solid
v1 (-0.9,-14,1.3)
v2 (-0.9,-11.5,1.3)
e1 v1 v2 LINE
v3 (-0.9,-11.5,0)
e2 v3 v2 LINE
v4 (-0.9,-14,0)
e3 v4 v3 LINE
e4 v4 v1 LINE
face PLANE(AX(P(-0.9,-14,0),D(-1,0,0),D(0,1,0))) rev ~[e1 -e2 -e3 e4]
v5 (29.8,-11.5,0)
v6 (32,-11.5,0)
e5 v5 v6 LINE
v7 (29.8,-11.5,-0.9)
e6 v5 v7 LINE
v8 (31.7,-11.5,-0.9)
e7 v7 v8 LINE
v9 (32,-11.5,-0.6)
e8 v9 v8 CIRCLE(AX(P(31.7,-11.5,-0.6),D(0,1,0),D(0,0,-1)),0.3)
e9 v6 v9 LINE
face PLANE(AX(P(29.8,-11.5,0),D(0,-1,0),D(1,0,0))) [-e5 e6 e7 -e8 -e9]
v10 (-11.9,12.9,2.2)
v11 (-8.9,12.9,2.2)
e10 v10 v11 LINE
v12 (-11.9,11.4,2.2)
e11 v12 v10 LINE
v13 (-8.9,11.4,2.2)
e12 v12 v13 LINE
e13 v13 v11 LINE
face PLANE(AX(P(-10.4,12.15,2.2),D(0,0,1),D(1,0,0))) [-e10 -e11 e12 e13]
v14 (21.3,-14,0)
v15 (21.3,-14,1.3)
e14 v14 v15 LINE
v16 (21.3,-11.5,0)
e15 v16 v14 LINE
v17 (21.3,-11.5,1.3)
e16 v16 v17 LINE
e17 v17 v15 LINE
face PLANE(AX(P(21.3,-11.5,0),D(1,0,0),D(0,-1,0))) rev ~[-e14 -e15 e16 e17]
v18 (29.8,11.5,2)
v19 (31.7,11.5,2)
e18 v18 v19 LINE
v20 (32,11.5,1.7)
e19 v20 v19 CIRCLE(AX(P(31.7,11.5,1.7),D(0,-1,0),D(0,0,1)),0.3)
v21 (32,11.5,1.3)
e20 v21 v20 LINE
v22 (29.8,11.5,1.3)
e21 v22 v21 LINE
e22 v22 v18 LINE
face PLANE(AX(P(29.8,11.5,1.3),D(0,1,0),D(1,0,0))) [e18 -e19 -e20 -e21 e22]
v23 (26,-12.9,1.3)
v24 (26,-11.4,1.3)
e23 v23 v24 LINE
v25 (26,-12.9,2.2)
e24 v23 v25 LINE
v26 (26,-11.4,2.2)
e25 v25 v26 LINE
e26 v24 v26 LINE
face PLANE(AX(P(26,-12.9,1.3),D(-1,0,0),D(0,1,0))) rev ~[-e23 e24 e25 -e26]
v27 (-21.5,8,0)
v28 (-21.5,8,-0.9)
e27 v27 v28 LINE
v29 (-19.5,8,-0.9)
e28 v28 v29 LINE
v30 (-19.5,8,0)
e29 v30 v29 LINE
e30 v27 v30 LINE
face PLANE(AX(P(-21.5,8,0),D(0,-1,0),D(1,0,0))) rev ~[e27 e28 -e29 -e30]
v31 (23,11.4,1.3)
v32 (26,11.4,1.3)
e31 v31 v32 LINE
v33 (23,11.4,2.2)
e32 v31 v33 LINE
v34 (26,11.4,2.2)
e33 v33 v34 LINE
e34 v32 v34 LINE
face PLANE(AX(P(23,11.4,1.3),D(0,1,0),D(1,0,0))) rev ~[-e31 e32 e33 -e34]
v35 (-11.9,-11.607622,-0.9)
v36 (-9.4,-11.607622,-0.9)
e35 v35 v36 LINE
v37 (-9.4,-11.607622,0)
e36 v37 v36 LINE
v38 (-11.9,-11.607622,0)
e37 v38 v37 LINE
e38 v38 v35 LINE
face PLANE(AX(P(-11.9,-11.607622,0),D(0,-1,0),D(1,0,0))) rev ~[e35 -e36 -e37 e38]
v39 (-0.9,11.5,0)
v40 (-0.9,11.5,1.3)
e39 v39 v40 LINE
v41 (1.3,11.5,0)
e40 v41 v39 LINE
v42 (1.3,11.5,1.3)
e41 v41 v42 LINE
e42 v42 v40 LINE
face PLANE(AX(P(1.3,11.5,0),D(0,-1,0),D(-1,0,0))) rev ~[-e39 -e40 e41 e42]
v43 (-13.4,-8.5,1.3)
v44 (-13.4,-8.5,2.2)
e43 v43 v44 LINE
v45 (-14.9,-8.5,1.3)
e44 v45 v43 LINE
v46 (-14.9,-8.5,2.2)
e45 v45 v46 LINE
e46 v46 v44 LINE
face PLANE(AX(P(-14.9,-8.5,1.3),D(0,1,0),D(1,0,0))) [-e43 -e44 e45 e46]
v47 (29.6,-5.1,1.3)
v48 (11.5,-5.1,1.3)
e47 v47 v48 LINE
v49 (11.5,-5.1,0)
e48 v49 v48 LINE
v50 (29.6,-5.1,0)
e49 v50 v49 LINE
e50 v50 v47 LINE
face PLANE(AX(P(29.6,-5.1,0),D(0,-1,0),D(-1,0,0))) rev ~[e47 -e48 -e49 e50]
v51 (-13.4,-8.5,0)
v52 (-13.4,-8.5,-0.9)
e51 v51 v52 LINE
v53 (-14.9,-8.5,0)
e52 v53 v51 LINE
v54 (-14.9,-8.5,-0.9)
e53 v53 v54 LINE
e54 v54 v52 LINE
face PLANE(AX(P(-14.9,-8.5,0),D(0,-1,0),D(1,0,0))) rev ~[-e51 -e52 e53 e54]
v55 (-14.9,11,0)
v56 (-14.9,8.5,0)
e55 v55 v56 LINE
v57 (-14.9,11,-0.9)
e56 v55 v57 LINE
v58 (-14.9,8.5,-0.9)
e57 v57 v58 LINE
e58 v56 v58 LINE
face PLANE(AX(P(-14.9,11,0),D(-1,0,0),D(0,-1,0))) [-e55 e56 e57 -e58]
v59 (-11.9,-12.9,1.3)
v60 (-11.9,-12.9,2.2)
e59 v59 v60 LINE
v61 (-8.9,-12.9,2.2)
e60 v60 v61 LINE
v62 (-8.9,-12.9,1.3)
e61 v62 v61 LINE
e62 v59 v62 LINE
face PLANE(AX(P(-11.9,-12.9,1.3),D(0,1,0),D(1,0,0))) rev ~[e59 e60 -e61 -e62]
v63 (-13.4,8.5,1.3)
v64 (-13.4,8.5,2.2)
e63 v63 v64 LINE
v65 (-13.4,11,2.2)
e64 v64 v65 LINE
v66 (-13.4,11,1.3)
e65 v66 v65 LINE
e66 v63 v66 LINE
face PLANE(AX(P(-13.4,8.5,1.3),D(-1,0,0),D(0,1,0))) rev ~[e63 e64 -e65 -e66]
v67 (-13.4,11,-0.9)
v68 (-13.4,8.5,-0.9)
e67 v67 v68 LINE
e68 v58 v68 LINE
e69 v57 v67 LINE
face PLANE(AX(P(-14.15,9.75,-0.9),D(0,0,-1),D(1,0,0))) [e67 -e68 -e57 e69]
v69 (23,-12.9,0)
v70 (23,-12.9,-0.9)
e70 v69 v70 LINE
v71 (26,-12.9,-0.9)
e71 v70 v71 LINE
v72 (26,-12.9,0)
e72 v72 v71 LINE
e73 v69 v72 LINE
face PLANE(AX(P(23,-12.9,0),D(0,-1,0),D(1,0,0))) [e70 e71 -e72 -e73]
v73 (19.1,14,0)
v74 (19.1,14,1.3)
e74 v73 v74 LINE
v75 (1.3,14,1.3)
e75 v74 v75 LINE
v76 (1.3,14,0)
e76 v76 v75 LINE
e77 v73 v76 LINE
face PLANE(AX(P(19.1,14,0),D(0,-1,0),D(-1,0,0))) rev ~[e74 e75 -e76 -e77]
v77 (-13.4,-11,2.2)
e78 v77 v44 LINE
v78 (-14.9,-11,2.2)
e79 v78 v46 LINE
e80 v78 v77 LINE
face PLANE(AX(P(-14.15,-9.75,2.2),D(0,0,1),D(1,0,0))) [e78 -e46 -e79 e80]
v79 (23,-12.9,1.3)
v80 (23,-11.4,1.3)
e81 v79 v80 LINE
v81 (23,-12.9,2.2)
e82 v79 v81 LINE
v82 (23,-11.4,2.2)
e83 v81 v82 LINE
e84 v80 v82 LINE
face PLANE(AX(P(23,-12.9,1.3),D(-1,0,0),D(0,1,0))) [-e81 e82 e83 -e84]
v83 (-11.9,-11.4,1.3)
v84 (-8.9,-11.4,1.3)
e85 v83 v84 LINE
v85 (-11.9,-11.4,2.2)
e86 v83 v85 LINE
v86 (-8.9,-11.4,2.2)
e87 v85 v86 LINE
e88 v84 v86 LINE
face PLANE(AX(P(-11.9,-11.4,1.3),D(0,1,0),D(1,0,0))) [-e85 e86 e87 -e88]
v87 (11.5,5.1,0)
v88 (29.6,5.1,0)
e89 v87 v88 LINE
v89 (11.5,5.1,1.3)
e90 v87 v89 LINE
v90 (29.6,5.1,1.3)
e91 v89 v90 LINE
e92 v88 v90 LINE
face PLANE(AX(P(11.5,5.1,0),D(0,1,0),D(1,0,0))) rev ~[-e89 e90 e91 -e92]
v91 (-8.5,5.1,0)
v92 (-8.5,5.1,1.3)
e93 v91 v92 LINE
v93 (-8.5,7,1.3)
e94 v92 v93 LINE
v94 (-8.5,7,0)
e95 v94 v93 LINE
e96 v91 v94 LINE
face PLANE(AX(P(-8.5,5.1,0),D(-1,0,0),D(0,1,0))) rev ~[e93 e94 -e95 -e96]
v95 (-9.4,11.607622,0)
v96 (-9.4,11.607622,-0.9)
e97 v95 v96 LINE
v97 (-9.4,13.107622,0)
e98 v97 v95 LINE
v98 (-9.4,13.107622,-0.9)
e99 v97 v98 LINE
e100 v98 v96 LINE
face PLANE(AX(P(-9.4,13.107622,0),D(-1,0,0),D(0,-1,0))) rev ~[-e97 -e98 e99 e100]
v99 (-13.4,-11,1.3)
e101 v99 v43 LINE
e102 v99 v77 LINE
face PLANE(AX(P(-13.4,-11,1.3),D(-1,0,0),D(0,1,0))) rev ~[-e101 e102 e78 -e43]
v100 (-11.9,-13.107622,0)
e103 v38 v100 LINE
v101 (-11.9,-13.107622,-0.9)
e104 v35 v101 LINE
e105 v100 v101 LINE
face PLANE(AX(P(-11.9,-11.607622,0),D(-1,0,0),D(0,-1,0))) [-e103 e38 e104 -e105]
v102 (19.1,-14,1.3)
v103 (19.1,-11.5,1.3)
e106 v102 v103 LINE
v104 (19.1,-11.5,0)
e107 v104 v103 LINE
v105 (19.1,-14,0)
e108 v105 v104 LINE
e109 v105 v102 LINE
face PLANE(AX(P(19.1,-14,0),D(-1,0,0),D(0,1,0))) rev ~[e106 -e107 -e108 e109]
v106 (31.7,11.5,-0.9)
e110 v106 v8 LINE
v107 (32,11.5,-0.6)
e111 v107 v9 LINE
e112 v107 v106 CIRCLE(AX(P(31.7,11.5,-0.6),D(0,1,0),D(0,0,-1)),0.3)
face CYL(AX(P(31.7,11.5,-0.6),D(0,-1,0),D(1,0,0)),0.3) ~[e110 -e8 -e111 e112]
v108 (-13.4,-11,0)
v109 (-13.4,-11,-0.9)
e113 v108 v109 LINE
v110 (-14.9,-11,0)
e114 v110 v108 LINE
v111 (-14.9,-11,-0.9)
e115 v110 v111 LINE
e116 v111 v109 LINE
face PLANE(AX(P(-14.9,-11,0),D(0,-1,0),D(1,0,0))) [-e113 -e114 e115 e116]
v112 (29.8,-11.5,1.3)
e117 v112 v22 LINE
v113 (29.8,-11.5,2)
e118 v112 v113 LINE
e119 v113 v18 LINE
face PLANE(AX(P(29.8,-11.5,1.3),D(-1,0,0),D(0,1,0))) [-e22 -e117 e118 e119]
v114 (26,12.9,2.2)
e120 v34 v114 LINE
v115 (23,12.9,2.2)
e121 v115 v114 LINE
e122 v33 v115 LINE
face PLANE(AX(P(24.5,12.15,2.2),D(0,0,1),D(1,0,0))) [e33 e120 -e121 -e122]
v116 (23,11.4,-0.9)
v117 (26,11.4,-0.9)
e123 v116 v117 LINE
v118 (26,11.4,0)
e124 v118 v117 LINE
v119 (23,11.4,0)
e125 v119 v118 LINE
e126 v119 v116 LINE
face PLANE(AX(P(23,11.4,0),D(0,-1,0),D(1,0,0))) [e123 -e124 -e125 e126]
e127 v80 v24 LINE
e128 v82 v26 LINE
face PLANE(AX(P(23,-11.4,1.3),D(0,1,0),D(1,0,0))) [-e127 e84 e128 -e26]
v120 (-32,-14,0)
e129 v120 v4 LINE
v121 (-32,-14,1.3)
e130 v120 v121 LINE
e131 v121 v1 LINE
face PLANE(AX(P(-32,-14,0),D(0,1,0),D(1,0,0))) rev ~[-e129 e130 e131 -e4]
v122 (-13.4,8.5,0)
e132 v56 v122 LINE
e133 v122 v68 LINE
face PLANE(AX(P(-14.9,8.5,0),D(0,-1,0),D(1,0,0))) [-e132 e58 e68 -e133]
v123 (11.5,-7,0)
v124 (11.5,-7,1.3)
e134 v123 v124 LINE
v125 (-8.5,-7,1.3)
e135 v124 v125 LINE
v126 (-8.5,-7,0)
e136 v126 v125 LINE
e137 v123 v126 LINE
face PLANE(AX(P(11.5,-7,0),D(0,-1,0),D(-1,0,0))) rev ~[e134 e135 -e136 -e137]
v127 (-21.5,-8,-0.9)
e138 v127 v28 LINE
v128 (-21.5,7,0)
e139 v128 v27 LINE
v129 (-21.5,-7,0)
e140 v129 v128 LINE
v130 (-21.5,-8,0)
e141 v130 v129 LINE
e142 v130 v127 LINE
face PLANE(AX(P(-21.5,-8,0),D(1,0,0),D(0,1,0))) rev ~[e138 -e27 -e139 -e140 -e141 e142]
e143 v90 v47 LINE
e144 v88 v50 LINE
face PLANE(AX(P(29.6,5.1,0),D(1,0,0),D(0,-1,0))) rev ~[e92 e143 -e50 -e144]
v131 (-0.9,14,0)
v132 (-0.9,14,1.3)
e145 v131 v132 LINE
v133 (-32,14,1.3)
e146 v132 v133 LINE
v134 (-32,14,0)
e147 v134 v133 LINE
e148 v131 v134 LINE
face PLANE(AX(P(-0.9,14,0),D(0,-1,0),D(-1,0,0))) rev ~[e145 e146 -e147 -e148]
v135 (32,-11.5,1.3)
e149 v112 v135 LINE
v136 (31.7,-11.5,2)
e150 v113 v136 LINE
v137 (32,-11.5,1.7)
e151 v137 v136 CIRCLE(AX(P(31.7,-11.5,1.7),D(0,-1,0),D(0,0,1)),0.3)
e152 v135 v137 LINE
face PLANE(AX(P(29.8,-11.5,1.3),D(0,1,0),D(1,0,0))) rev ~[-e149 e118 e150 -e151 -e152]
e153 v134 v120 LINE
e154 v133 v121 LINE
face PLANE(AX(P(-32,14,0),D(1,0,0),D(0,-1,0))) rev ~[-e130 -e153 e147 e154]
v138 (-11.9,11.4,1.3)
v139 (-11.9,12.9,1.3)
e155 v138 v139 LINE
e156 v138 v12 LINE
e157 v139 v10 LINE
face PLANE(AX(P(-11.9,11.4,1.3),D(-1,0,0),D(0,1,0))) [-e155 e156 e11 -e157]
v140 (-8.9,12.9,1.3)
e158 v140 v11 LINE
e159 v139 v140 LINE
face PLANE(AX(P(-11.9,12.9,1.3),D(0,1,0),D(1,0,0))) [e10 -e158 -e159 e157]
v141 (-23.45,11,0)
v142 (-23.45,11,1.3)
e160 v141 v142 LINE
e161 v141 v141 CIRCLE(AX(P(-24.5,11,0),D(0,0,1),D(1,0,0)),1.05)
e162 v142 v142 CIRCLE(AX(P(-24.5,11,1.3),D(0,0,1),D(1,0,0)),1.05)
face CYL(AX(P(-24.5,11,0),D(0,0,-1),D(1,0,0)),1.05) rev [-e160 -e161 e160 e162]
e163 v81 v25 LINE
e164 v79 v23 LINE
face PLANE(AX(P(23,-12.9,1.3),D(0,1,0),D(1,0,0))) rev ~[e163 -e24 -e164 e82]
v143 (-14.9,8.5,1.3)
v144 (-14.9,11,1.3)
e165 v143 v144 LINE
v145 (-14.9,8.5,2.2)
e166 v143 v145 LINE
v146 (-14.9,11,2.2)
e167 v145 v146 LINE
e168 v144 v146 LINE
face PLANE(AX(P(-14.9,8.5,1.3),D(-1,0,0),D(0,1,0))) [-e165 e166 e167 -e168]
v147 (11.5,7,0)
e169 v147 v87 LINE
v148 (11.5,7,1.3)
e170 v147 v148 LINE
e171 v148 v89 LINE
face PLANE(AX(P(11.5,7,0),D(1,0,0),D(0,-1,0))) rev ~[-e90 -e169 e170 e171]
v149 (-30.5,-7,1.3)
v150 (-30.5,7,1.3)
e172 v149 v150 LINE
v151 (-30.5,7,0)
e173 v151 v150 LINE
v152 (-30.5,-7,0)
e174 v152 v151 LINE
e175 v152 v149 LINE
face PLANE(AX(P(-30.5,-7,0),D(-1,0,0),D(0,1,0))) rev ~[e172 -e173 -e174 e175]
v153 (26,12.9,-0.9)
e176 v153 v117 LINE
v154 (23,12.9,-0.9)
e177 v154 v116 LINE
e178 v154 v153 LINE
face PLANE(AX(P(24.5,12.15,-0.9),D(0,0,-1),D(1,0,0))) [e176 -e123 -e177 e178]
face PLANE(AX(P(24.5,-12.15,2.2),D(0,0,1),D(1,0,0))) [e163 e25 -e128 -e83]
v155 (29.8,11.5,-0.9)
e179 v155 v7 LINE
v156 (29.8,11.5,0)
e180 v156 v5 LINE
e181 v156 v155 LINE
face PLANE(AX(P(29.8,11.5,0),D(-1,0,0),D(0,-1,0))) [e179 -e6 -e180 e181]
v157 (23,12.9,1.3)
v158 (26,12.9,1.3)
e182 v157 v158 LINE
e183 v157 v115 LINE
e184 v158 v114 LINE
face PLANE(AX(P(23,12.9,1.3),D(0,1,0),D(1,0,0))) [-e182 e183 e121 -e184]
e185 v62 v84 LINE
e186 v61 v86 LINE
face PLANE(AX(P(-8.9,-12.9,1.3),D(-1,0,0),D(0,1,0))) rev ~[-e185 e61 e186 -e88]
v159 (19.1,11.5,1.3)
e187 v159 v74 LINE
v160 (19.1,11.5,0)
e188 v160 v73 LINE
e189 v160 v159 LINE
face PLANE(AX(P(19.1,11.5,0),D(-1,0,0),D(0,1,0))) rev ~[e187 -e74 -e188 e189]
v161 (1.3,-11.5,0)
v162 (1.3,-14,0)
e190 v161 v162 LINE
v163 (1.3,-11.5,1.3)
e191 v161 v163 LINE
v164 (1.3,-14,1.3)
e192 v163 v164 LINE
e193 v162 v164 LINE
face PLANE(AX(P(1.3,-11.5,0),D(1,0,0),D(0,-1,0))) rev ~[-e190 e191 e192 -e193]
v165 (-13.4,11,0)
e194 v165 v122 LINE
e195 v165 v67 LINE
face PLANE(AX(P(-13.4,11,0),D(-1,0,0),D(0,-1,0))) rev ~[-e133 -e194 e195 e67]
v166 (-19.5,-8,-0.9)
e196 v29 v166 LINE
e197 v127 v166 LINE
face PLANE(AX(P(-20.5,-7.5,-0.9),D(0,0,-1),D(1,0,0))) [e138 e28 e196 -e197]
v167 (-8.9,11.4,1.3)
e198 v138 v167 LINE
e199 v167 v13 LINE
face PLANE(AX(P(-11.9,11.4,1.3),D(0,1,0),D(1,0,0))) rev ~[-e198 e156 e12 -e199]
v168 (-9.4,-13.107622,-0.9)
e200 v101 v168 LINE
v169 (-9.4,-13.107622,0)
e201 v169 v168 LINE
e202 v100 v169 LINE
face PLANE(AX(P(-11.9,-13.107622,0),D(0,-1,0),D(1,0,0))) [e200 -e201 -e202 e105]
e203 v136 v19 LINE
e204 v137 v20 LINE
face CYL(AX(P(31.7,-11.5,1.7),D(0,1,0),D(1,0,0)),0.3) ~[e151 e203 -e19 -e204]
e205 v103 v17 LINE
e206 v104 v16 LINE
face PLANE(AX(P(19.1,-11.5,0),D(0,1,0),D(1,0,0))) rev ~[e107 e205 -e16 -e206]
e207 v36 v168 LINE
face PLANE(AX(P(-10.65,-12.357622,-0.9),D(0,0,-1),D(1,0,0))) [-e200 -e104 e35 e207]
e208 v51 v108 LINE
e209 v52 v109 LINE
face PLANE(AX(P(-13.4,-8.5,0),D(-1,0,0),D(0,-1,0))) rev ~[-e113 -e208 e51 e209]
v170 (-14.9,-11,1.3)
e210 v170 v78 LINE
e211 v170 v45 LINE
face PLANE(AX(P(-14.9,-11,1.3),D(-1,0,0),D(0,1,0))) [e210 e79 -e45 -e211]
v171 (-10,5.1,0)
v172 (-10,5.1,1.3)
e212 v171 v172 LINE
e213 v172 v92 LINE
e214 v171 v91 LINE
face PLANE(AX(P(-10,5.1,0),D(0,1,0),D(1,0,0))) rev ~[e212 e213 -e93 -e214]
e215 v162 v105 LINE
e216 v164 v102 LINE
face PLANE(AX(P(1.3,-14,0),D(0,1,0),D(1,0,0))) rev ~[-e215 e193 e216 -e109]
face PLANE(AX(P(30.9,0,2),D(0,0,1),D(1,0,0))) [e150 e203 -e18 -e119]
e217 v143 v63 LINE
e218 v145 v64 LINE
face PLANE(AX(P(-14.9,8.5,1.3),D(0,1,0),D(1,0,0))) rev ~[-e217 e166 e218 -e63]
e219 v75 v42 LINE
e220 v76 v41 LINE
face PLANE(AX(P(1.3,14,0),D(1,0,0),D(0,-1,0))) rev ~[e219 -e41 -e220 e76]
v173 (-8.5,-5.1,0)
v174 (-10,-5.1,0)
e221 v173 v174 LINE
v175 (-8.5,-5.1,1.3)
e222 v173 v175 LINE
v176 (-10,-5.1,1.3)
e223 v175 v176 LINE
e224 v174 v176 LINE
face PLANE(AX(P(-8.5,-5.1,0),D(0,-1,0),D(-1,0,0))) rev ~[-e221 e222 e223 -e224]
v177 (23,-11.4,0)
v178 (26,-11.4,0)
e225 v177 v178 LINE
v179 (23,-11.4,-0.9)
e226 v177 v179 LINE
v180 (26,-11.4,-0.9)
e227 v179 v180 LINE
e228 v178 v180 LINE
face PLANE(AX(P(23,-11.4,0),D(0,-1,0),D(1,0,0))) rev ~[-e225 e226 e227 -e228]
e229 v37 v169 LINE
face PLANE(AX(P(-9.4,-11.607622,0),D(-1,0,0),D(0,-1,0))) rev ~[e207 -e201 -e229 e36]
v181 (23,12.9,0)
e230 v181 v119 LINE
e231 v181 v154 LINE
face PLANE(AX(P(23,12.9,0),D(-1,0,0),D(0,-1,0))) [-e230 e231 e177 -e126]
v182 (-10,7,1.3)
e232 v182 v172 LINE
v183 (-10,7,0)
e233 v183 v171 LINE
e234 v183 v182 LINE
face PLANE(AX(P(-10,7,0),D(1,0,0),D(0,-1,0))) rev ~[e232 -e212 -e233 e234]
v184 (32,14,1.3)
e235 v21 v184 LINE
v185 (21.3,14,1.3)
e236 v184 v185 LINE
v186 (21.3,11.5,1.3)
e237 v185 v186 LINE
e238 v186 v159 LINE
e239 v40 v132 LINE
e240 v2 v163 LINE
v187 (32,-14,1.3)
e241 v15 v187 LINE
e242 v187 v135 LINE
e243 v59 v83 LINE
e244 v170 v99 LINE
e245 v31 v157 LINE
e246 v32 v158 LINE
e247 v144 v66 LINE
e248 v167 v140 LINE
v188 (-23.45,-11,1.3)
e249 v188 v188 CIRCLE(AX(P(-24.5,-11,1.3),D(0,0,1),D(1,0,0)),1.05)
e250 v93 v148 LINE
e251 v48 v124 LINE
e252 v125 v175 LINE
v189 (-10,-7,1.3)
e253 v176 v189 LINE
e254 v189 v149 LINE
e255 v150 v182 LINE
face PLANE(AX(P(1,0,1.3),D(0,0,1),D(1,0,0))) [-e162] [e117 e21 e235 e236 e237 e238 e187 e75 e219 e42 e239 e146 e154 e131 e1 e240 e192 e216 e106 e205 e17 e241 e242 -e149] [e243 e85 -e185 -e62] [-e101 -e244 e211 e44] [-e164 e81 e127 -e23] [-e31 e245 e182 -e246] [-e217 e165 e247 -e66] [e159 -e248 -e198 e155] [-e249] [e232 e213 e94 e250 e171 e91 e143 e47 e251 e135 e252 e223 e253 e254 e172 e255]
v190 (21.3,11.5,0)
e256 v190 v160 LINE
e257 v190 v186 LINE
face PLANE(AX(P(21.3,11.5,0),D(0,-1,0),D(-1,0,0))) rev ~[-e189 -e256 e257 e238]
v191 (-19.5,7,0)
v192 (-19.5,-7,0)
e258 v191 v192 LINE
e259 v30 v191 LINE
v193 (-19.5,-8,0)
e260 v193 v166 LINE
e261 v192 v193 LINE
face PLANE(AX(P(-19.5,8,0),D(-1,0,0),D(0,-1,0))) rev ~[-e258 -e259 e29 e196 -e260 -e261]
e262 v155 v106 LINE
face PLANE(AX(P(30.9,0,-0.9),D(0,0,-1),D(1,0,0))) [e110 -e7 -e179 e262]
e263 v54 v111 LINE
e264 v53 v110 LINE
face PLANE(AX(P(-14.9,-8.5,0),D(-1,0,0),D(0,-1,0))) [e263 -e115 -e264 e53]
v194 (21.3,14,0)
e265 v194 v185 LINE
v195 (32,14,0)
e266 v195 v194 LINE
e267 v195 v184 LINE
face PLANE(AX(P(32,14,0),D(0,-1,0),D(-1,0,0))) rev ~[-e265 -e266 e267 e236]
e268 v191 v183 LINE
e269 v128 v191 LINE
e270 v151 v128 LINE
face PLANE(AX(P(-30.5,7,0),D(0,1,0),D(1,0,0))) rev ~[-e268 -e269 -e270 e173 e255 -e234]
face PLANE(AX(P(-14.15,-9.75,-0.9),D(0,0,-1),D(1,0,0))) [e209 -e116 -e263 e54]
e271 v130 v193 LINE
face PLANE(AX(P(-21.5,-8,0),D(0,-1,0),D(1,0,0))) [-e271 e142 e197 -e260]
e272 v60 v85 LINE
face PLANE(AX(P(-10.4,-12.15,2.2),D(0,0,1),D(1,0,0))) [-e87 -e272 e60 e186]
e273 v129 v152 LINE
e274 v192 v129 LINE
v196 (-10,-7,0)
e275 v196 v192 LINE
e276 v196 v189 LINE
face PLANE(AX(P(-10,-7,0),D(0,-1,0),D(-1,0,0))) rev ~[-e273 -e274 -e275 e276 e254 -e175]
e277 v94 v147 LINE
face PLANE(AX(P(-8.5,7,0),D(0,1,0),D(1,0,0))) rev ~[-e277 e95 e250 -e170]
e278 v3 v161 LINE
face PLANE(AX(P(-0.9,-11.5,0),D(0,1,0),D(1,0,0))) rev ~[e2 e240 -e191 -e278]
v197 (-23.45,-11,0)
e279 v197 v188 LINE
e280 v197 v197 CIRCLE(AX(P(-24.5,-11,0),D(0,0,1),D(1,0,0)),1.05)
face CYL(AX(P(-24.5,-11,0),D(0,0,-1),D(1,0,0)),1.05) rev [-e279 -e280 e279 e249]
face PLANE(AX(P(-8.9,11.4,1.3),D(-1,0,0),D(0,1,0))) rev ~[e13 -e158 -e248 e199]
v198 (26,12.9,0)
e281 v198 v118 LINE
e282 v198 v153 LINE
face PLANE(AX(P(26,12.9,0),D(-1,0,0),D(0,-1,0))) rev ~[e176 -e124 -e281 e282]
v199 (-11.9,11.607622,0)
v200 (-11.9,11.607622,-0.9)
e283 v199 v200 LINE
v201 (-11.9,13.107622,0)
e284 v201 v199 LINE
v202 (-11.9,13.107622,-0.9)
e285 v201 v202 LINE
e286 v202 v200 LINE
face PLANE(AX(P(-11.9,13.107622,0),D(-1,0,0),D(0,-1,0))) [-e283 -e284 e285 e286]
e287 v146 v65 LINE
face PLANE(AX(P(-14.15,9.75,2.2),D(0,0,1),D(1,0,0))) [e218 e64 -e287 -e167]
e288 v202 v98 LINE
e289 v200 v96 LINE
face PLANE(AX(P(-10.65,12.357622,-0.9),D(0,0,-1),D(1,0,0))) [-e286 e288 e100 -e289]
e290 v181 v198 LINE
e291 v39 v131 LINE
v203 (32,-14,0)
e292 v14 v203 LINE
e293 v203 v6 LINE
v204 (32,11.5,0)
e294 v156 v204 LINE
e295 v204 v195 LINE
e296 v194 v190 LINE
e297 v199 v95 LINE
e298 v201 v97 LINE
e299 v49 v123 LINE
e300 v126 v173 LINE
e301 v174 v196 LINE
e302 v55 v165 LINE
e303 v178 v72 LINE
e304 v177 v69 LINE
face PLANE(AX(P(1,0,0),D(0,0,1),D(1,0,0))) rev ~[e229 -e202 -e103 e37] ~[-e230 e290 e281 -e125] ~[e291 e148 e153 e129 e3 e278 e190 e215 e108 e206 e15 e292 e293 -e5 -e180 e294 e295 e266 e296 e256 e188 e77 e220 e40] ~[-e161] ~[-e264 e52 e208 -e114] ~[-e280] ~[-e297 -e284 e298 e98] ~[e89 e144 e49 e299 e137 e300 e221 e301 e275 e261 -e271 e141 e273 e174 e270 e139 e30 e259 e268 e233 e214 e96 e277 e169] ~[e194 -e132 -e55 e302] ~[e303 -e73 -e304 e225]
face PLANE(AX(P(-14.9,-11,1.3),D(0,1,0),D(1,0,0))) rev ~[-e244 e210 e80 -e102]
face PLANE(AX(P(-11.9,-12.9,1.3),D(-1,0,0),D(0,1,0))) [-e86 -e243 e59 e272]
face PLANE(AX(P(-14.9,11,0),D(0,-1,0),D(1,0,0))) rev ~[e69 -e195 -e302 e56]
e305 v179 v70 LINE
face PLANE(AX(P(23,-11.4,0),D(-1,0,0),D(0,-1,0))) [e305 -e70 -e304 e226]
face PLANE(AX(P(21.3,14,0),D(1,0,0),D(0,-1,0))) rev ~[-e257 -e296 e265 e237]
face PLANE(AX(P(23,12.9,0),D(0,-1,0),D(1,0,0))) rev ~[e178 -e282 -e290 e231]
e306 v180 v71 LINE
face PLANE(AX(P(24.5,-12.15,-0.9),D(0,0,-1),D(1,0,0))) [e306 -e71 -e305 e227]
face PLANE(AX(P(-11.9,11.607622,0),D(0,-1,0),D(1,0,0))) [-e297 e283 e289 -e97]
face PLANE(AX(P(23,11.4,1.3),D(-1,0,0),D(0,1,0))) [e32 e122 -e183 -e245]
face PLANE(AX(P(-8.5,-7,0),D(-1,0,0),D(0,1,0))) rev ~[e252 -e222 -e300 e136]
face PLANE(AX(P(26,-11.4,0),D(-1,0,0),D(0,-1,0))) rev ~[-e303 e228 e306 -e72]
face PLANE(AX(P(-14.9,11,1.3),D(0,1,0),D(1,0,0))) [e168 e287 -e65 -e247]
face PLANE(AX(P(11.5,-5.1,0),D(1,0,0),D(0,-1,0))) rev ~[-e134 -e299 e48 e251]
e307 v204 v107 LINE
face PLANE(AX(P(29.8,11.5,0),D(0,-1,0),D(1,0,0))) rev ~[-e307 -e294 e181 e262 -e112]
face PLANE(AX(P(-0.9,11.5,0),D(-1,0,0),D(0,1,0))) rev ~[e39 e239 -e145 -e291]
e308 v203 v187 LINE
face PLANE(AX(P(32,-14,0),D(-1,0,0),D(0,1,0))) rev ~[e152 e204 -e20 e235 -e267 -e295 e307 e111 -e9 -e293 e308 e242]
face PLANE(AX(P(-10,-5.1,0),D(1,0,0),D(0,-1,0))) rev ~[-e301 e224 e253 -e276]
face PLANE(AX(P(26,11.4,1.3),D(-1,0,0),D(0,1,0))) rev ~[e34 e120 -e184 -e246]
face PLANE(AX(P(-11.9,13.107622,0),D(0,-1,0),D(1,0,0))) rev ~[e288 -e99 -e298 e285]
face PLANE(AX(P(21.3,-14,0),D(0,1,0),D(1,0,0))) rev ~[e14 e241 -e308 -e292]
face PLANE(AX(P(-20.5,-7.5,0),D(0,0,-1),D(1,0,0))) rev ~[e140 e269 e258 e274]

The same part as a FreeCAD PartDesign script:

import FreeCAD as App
import Part
import Sketcher
Q = App.Units.Quantity


def edges_at(feature, points):
    """Names of the edges that pass closest to the given points."""
    edges = feature.Shape.Edges
    near = lambda p: min(range(len(edges)), key=lambda i: edges[i].distToShape(Part.Vertex(*p))[0])
    return sorted({f"Edge{near(p) + 1}" for p in points})

doc = App.newDocument("Part")
body = doc.addObject("PartDesign::Body", "Body")

# Sketch on XY plane
sketch1 = body.newObject("Sketcher::SketchObject", "Sketch")
sketch1.AttachmentSupport = (doc.getObject("XY_Plane"), [""])
sketch1.MapMode = "FlatFace"
sketch1.addGeometry([
    Part.LineSegment(App.Vector(21.3, -14, 0), App.Vector(32, -14, 0)),  # 0
    Part.LineSegment(App.Vector(32, -14, 0), App.Vector(32, 14, 0)),  # 1
    Part.LineSegment(App.Vector(32, 14, 0), App.Vector(21.3, 14, 0)),  # 2
    Part.LineSegment(App.Vector(21.3, 14, 0), App.Vector(21.3, 11.5, 0)),  # 3
    Part.LineSegment(App.Vector(21.3, 11.5, 0), App.Vector(19.1, 11.5, 0)),  # 4
    Part.LineSegment(App.Vector(19.1, 11.5, 0), App.Vector(19.1, 14, 0)),  # 5
    Part.LineSegment(App.Vector(19.1, 14, 0), App.Vector(1.3, 14, 0)),  # 6
    Part.LineSegment(App.Vector(1.3, 14, 0), App.Vector(1.3, 11.5, 0)),  # 7
    Part.LineSegment(App.Vector(1.3, 11.5, 0), App.Vector(-0.9, 11.5, 0)),  # 8
    Part.LineSegment(App.Vector(-0.9, 11.5, 0), App.Vector(-0.9, 14, 0)),  # 9
    Part.LineSegment(App.Vector(-0.9, 14, 0), App.Vector(-32, 14, 0)),  # 10
    Part.LineSegment(App.Vector(-32, 14, 0), App.Vector(-32, -14, 0)),  # 11
    Part.LineSegment(App.Vector(-32, -14, 0), App.Vector(-0.9, -14, 0)),  # 12
    Part.LineSegment(App.Vector(-0.9, -14, 0), App.Vector(-0.9, -11.5, 0)),  # 13
    Part.LineSegment(App.Vector(-0.9, -11.5, 0), App.Vector(1.3, -11.5, 0)),  # 14
    Part.LineSegment(App.Vector(1.3, -11.5, 0), App.Vector(1.3, -14, 0)),  # 15
    Part.LineSegment(App.Vector(1.3, -14, 0), App.Vector(19.1, -14, 0)),  # 16
    Part.LineSegment(App.Vector(19.1, -14, 0), App.Vector(19.1, -11.5, 0)),  # 17
    Part.LineSegment(App.Vector(19.1, -11.5, 0), App.Vector(21.3, -11.5, 0)),  # 18
    Part.LineSegment(App.Vector(21.3, -11.5, 0), App.Vector(21.3, -14, 0)),  # 19
    Part.Circle(App.Vector(-24.5, -11, 0), App.Vector(0, 0, 1), 1.1),  # 20
    Part.Circle(App.Vector(-24.5, 11, 0), App.Vector(0, 0, 1), 1.1),  # 21
    Part.LineSegment(App.Vector(-30.5, 7, 0), App.Vector(-10, 7, 0)),  # 22
    Part.LineSegment(App.Vector(-10, 7, 0), App.Vector(-10, 5.1, 0)),  # 23
    Part.LineSegment(App.Vector(-10, 5.1, 0), App.Vector(-8.5, 5.1, 0)),  # 24
    Part.LineSegment(App.Vector(-8.5, 5.1, 0), App.Vector(-8.5, 7, 0)),  # 25
    Part.LineSegment(App.Vector(-8.5, 7, 0), App.Vector(11.5, 7, 0)),  # 26
    Part.LineSegment(App.Vector(11.5, 7, 0), App.Vector(11.5, 5.1, 0)),  # 27
    Part.LineSegment(App.Vector(11.5, 5.1, 0), App.Vector(29.6, 5.1, 0)),  # 28
    Part.LineSegment(App.Vector(29.6, 5.1, 0), App.Vector(29.6, -5.1, 0)),  # 29
    Part.LineSegment(App.Vector(29.6, -5.1, 0), App.Vector(11.5, -5.1, 0)),  # 30
    Part.LineSegment(App.Vector(11.5, -5.1, 0), App.Vector(11.5, -7, 0)),  # 31
    Part.LineSegment(App.Vector(11.5, -7, 0), App.Vector(-8.5, -7, 0)),  # 32
    Part.LineSegment(App.Vector(-8.5, -7, 0), App.Vector(-8.5, -5.1, 0)),  # 33
    Part.LineSegment(App.Vector(-8.5, -5.1, 0), App.Vector(-10, -5.1, 0)),  # 34
    Part.LineSegment(App.Vector(-10, -5.1, 0), App.Vector(-10, -7, 0)),  # 35
    Part.LineSegment(App.Vector(-10, -7, 0), App.Vector(-30.5, -7, 0)),  # 36
    Part.LineSegment(App.Vector(-30.5, -7, 0), App.Vector(-30.5, 7, 0)),  # 37
], False)
sketch1.addConstraint([
    Sketcher.Constraint("Coincident", 0, 2, 1, 1),
    Sketcher.Constraint("Coincident", 1, 2, 2, 1),
    Sketcher.Constraint("Coincident", 2, 2, 3, 1),
    Sketcher.Constraint("Coincident", 3, 2, 4, 1),
    Sketcher.Constraint("Coincident", 4, 2, 5, 1),
    Sketcher.Constraint("Coincident", 5, 2, 6, 1),
    Sketcher.Constraint("Coincident", 6, 2, 7, 1),
    Sketcher.Constraint("Coincident", 7, 2, 8, 1),
    Sketcher.Constraint("Coincident", 8, 2, 9, 1),
    Sketcher.Constraint("Coincident", 9, 2, 10, 1),
    Sketcher.Constraint("Coincident", 10, 2, 11, 1),
    Sketcher.Constraint("Coincident", 11, 2, 12, 1),
    Sketcher.Constraint("Coincident", 12, 2, 13, 1),
    Sketcher.Constraint("Coincident", 13, 2, 14, 1),
    Sketcher.Constraint("Coincident", 14, 2, 15, 1),
    Sketcher.Constraint("Coincident", 15, 2, 16, 1),
    Sketcher.Constraint("Coincident", 16, 2, 17, 1),
    Sketcher.Constraint("Coincident", 17, 2, 18, 1),
    Sketcher.Constraint("Coincident", 18, 2, 19, 1),
    Sketcher.Constraint("Coincident", 19, 2, 0, 1),
    Sketcher.Constraint("Coincident", 22, 2, 23, 1),
    Sketcher.Constraint("Coincident", 23, 2, 24, 1),
    Sketcher.Constraint("Coincident", 24, 2, 25, 1),
    Sketcher.Constraint("Coincident", 25, 2, 26, 1),
    Sketcher.Constraint("Coincident", 26, 2, 27, 1),
    Sketcher.Constraint("Coincident", 27, 2, 28, 1),
    Sketcher.Constraint("Coincident", 28, 2, 29, 1),
    Sketcher.Constraint("Coincident", 29, 2, 30, 1),
    Sketcher.Constraint("Coincident", 30, 2, 31, 1),
    Sketcher.Constraint("Coincident", 31, 2, 32, 1),
    Sketcher.Constraint("Coincident", 32, 2, 33, 1),
    Sketcher.Constraint("Coincident", 33, 2, 34, 1),
    Sketcher.Constraint("Coincident", 34, 2, 35, 1),
    Sketcher.Constraint("Coincident", 35, 2, 36, 1),
    Sketcher.Constraint("Coincident", 36, 2, 37, 1),
    Sketcher.Constraint("Coincident", 37, 2, 22, 1),
    Sketcher.Constraint("Horizontal", 0),
    Sketcher.Constraint("Vertical", 1),
    Sketcher.Constraint("Horizontal", 2),
    Sketcher.Constraint("Vertical", 3),
    Sketcher.Constraint("Horizontal", 4),
    Sketcher.Constraint("Vertical", 5),
    Sketcher.Constraint("Horizontal", 6),
    Sketcher.Constraint("Vertical", 7),
    Sketcher.Constraint("Horizontal", 8),
    Sketcher.Constraint("Vertical", 9),
    Sketcher.Constraint("Horizontal", 10),
    Sketcher.Constraint("Vertical", 11),
    Sketcher.Constraint("Horizontal", 12),
    Sketcher.Constraint("Vertical", 13),
    Sketcher.Constraint("Horizontal", 14),
    Sketcher.Constraint("Vertical", 15),
    Sketcher.Constraint("Horizontal", 16),
    Sketcher.Constraint("Vertical", 17),
    Sketcher.Constraint("Horizontal", 18),
    Sketcher.Constraint("Vertical", 19),
    Sketcher.Constraint("Horizontal", 22),
    Sketcher.Constraint("Vertical", 23),
    Sketcher.Constraint("Horizontal", 24),
    Sketcher.Constraint("Vertical", 25),
    Sketcher.Constraint("Horizontal", 26),
    Sketcher.Constraint("Vertical", 27),
    Sketcher.Constraint("Horizontal", 28),
    Sketcher.Constraint("Vertical", 29),
    Sketcher.Constraint("Horizontal", 30),
    Sketcher.Constraint("Vertical", 31),
    Sketcher.Constraint("Horizontal", 32),
    Sketcher.Constraint("Vertical", 33),
    Sketcher.Constraint("Horizontal", 34),
    Sketcher.Constraint("Vertical", 35),
    Sketcher.Constraint("Horizontal", 36),
    Sketcher.Constraint("Vertical", 37),
    Sketcher.Constraint("Equal", 20, 21),
    Sketcher.Constraint("Symmetric", 0, 2, 10, 2, -1, 1),
    Sketcher.Constraint("Symmetric", 20, 3, 21, 3, -1),
    Sketcher.Constraint("Symmetric", 9, 2, 12, 2, -1),
    Sketcher.Constraint("Symmetric", 7, 2, 14, 2, -1),
    Sketcher.Constraint("Symmetric", 5, 2, 16, 2, -1),
    Sketcher.Constraint("Symmetric", 3, 2, 18, 2, -1),
    Sketcher.Constraint("Symmetric", 27, 2, 30, 2, -1),
    Sketcher.Constraint("Symmetric", 25, 2, 32, 2, -1),
    Sketcher.Constraint("Symmetric", 23, 2, 34, 2, -1),
    Sketcher.Constraint("Horizontal", 2, 2, 5, 2),
    Sketcher.Constraint("Horizontal", 4, 2, 7, 2),
    Sketcher.Constraint("Horizontal", 6, 2, 9, 2),
    Sketcher.Constraint("Horizontal", 22, 2, 25, 2),
    Sketcher.Constraint("Horizontal", 24, 2, 27, 2),
    Sketcher.Constraint("Horizontal", 32, 2, 35, 2),
    Sketcher.Constraint("Equal", 4, 8),
    Sketcher.Constraint("Diameter", 20, Q("2.1 mm")),
    Sketcher.Constraint("DistanceX", 26, 1, 26, 2, Q("20 mm")),
    Sketcher.Constraint("DistanceY", 1, 1, 1, 2, Q("28 mm")),
    Sketcher.Constraint("DistanceY", 37, 1, 37, 2, Q("14 mm")),
    Sketcher.Constraint("DistanceX", 0, 1, 0, 2, Q("10.7 mm")),
    Sketcher.Constraint("DistanceX", 4, 2, 4, 1, Q("2.2 mm")),
    Sketcher.Constraint("DistanceX", 6, 2, 6, 1, Q("17.8 mm")),
    Sketcher.Constraint("DistanceX", 10, 2, 10, 1, Q("31.1 mm")),
    Sketcher.Constraint("DistanceX", 22, 1, 22, 2, Q("20.5 mm")),
    Sketcher.Constraint("DistanceX", 24, 1, 24, 2, Q("1.5 mm")),
    Sketcher.Constraint("DistanceX", 28, 1, 28, 2, Q("18.1 mm")),
    Sketcher.Constraint("DistanceY", 3, 2, 3, 1, Q("2.5 mm")),
    Sketcher.Constraint("DistanceY", 23, 2, 23, 1, Q("1.9 mm")),
    Sketcher.Constraint("DistanceY", 20, 3, -1, 1, Q("11 mm")),
    Sketcher.Constraint("DistanceX", 22, 2, -1, 1, Q("10 mm")),
    Sketcher.Constraint("DistanceX", 36, 2, 20, 3, Q("6 mm")),
])
pad1 = body.newObject("PartDesign::Pad", "Pad")
pad1.Profile = sketch1
pad1.Length = 1.3

# Sketch on XY plane
sketch2 = body.newObject("Sketcher::SketchObject", "Sketch001")
sketch2.AttachmentSupport = (doc.getObject("XY_Plane"), [""])
sketch2.MapMode = "FlatFace"
sketch2.AttachmentOffset = App.Placement(App.Vector(0, 0, 1.3), App.Rotation())
sketch2.addGeometry([
    Part.LineSegment(App.Vector(29.8, 11.5, 0), App.Vector(29.8, -11.5, 0)),
    Part.LineSegment(App.Vector(29.8, -11.5, 0), App.Vector(32, -11.5, 0)),
    Part.LineSegment(App.Vector(32, -11.5, 0), App.Vector(32, 11.5, 0)),
    Part.LineSegment(App.Vector(32, 11.5, 0), App.Vector(29.8, 11.5, 0)),
], False)
sketch2.addConstraint([
    Sketcher.Constraint("Coincident", 0, 2, 1, 1),
    Sketcher.Constraint("Coincident", 1, 2, 2, 1),
    Sketcher.Constraint("Coincident", 2, 2, 3, 1),
    Sketcher.Constraint("Coincident", 3, 2, 0, 1),
    Sketcher.Constraint("Vertical", 0),
    Sketcher.Constraint("Horizontal", 1),
    Sketcher.Constraint("Vertical", 2),
    Sketcher.Constraint("Horizontal", 3),
    Sketcher.Constraint("DistanceY", 0, 2, 0, 1, Q("23 mm")),
    Sketcher.Constraint("DistanceX", 1, 1, 1, 2, Q("2.2 mm")),
    Sketcher.Constraint("DistanceX", -1, 1, 1, 2, Q("32 mm")),
    Sketcher.Constraint("DistanceY", 0, 2, -1, 1, Q("11.5 mm")),
])
pad2 = body.newObject("PartDesign::Pad", "Pad001")
pad2.Profile = sketch2
pad2.Length = 0.7

# Sketch on XY plane
sketch3 = body.newObject("Sketcher::SketchObject", "Sketch002")
sketch3.AttachmentSupport = (doc.getObject("XY_Plane"), [""])
sketch3.MapMode = "FlatFace"
sketch3.addGeometry([
    Part.LineSegment(App.Vector(-11.9, -13.1, 0), App.Vector(-11.9, -11.6, 0)),  # 0
    Part.LineSegment(App.Vector(-11.9, -11.6, 0), App.Vector(-9.4, -11.6, 0)),  # 1
    Part.LineSegment(App.Vector(-9.4, -11.6, 0), App.Vector(-9.4, -13.1, 0)),  # 2
    Part.LineSegment(App.Vector(-9.4, -13.1, 0), App.Vector(-11.9, -13.1, 0)),  # 3
    Part.LineSegment(App.Vector(-14.9, -11, 0), App.Vector(-14.9, -8.5, 0)),  # 4
    Part.LineSegment(App.Vector(-14.9, -8.5, 0), App.Vector(-13.4, -8.5, 0)),  # 5
    Part.LineSegment(App.Vector(-13.4, -8.5, 0), App.Vector(-13.4, -11, 0)),  # 6
    Part.LineSegment(App.Vector(-13.4, -11, 0), App.Vector(-14.9, -11, 0)),  # 7
    Part.LineSegment(App.Vector(-14.9, 8.5, 0), App.Vector(-14.9, 11, 0)),  # 8
    Part.LineSegment(App.Vector(-14.9, 11, 0), App.Vector(-13.4, 11, 0)),  # 9
    Part.LineSegment(App.Vector(-13.4, 11, 0), App.Vector(-13.4, 8.5, 0)),  # 10
    Part.LineSegment(App.Vector(-13.4, 8.5, 0), App.Vector(-14.9, 8.5, 0)),  # 11
    Part.LineSegment(App.Vector(-11.9, 11.6, 0), App.Vector(-11.9, 13.1, 0)),  # 12
    Part.LineSegment(App.Vector(-11.9, 13.1, 0), App.Vector(-9.4, 13.1, 0)),  # 13
    Part.LineSegment(App.Vector(-9.4, 13.1, 0), App.Vector(-9.4, 11.6, 0)),  # 14
    Part.LineSegment(App.Vector(-9.4, 11.6, 0), App.Vector(-11.9, 11.6, 0)),  # 15
    Part.LineSegment(App.Vector(23, 11.4, 0), App.Vector(23, 12.9, 0)),  # 16
    Part.LineSegment(App.Vector(23, 12.9, 0), App.Vector(26, 12.9, 0)),  # 17
    Part.LineSegment(App.Vector(26, 12.9, 0), App.Vector(26, 11.4, 0)),  # 18
    Part.LineSegment(App.Vector(26, 11.4, 0), App.Vector(23, 11.4, 0)),  # 19
    Part.LineSegment(App.Vector(29.8, -11.5, 0), App.Vector(29.8, 11.5, 0)),  # 20
    Part.LineSegment(App.Vector(29.8, 11.5, 0), App.Vector(32, 11.5, 0)),  # 21
    Part.LineSegment(App.Vector(32, 11.5, 0), App.Vector(32, -11.5, 0)),  # 22
    Part.LineSegment(App.Vector(32, -11.5, 0), App.Vector(29.8, -11.5, 0)),  # 23
    Part.LineSegment(App.Vector(23, -12.9, 0), App.Vector(23, -11.4, 0)),  # 24
    Part.LineSegment(App.Vector(23, -11.4, 0), App.Vector(26, -11.4, 0)),  # 25
    Part.LineSegment(App.Vector(26, -11.4, 0), App.Vector(26, -12.9, 0)),  # 26
    Part.LineSegment(App.Vector(26, -12.9, 0), App.Vector(23, -12.9, 0)),  # 27
], False)
sketch3.addConstraint([
    Sketcher.Constraint("Coincident", 0, 2, 1, 1),
    Sketcher.Constraint("Coincident", 1, 2, 2, 1),
    Sketcher.Constraint("Coincident", 2, 2, 3, 1),
    Sketcher.Constraint("Coincident", 3, 2, 0, 1),
    Sketcher.Constraint("Coincident", 4, 2, 5, 1),
    Sketcher.Constraint("Coincident", 5, 2, 6, 1),
    Sketcher.Constraint("Coincident", 6, 2, 7, 1),
    Sketcher.Constraint("Coincident", 7, 2, 4, 1),
    Sketcher.Constraint("Coincident", 8, 2, 9, 1),
    Sketcher.Constraint("Coincident", 9, 2, 10, 1),
    Sketcher.Constraint("Coincident", 10, 2, 11, 1),
    Sketcher.Constraint("Coincident", 11, 2, 8, 1),
    Sketcher.Constraint("Coincident", 12, 2, 13, 1),
    Sketcher.Constraint("Coincident", 13, 2, 14, 1),
    Sketcher.Constraint("Coincident", 14, 2, 15, 1),
    Sketcher.Constraint("Coincident", 15, 2, 12, 1),
    Sketcher.Constraint("Coincident", 16, 2, 17, 1),
    Sketcher.Constraint("Coincident", 17, 2, 18, 1),
    Sketcher.Constraint("Coincident", 18, 2, 19, 1),
    Sketcher.Constraint("Coincident", 19, 2, 16, 1),
    Sketcher.Constraint("Coincident", 20, 2, 21, 1),
    Sketcher.Constraint("Coincident", 21, 2, 22, 1),
    Sketcher.Constraint("Coincident", 22, 2, 23, 1),
    Sketcher.Constraint("Coincident", 23, 2, 20, 1),
    Sketcher.Constraint("Coincident", 24, 2, 25, 1),
    Sketcher.Constraint("Coincident", 25, 2, 26, 1),
    Sketcher.Constraint("Coincident", 26, 2, 27, 1),
    Sketcher.Constraint("Coincident", 27, 2, 24, 1),
    Sketcher.Constraint("Vertical", 0),
    Sketcher.Constraint("Horizontal", 1),
    Sketcher.Constraint("Vertical", 2),
    Sketcher.Constraint("Horizontal", 3),
    Sketcher.Constraint("Vertical", 4),
    Sketcher.Constraint("Horizontal", 5),
    Sketcher.Constraint("Vertical", 6),
    Sketcher.Constraint("Horizontal", 7),
    Sketcher.Constraint("Vertical", 8),
    Sketcher.Constraint("Horizontal", 9),
    Sketcher.Constraint("Vertical", 10),
    Sketcher.Constraint("Horizontal", 11),
    Sketcher.Constraint("Vertical", 12),
    Sketcher.Constraint("Horizontal", 13),
    Sketcher.Constraint("Vertical", 14),
    Sketcher.Constraint("Horizontal", 15),
    Sketcher.Constraint("Vertical", 16),
    Sketcher.Constraint("Horizontal", 17),
    Sketcher.Constraint("Vertical", 18),
    Sketcher.Constraint("Horizontal", 19),
    Sketcher.Constraint("Vertical", 20),
    Sketcher.Constraint("Horizontal", 21),
    Sketcher.Constraint("Vertical", 22),
    Sketcher.Constraint("Horizontal", 23),
    Sketcher.Constraint("Vertical", 24),
    Sketcher.Constraint("Horizontal", 25),
    Sketcher.Constraint("Vertical", 26),
    Sketcher.Constraint("Horizontal", 27),
    Sketcher.Constraint("Symmetric", 7, 2, 8, 2, -1),
    Sketcher.Constraint("Symmetric", 5, 2, 10, 2, -1),
    Sketcher.Constraint("Symmetric", 3, 2, 12, 2, -1),
    Sketcher.Constraint("Symmetric", 1, 2, 14, 2, -1),
    Sketcher.Constraint("Symmetric", 19, 2, 24, 2, -1),
    Sketcher.Constraint("Symmetric", 17, 2, 26, 2, -1),
    Sketcher.Constraint("Equal", 11, 0),
    Sketcher.Constraint("Equal", 15, 4),
    Sketcher.Constraint("Equal", 14, 16),
    Sketcher.Constraint("DistanceX", 17, 1, 17, 2, Q("3 mm")),
    Sketcher.Constraint("DistanceY", 20, 1, 20, 2, Q("23 mm")),
    Sketcher.Constraint("DistanceX", 1, 1, 1, 2, Q("2.5 mm")),
    Sketcher.Constraint("DistanceX", 5, 1, 5, 2, Q("1.5 mm")),
    Sketcher.Constraint("DistanceX", 21, 1, 21, 2, Q("2.2 mm")),
    Sketcher.Constraint("DistanceY", 6, 2, -1, 1, Q("11 mm")),
    Sketcher.Constraint("DistanceX", -1, 1, 16, 2, Q("23 mm")),
    Sketcher.Constraint("DistanceX", -1, 1, 21, 2, Q("32 mm")),
    Sketcher.Constraint("DistanceX", 4, 2, 0, 2, Q("3 mm")),
    Sketcher.Constraint("DistanceX", 0, 2, -1, 1, Q("11.9 mm")),
    Sketcher.Constraint("DistanceY", -1, 1, 16, 2, Q("12.9 mm")),
    Sketcher.Constraint("DistanceY", -1, 1, 20, 2, Q("11.5 mm")),
    Sketcher.Constraint("DistanceY", 0, 2, -1, 1, Q("11.607622 mm")),
])
pad3 = body.newObject("PartDesign::Pad", "Pad002")
pad3.Profile = sketch3
pad3.Length = 0.9
pad3.Reversed = True
doc.recompute()

fillet = body.newObject("PartDesign::Fillet", "Fillet")
fillet.Base = (pad3, edges_at(pad3, [(32, 0, -0.9)]))
fillet.Radius = 0.3
doc.recompute()

fillet2 = body.newObject("PartDesign::Fillet", "Fillet001")
fillet2.Base = (fillet, edges_at(fillet, [(32, 0, 2)]))
fillet2.Radius = 0.3

# Sketch on XY plane
sketch4 = body.newObject("Sketcher::SketchObject", "Sketch003")
sketch4.AttachmentSupport = (doc.getObject("XY_Plane"), [""])
sketch4.MapMode = "FlatFace"
sketch4.addGeometry([
    Part.LineSegment(App.Vector(-21.5, -8, 0), App.Vector(-21.5, 8, 0)),
    Part.LineSegment(App.Vector(-21.5, 8, 0), App.Vector(-19.5, 8, 0)),
    Part.LineSegment(App.Vector(-19.5, 8, 0), App.Vector(-19.5, -8, 0)),
    Part.LineSegment(App.Vector(-19.5, -8, 0), App.Vector(-21.5, -8, 0)),
], False)
sketch4.addConstraint([
    Sketcher.Constraint("Coincident", 0, 2, 1, 1),
    Sketcher.Constraint("Coincident", 1, 2, 2, 1),
    Sketcher.Constraint("Coincident", 2, 2, 3, 1),
    Sketcher.Constraint("Coincident", 3, 2, 0, 1),
    Sketcher.Constraint("Vertical", 0),
    Sketcher.Constraint("Horizontal", 1),
    Sketcher.Constraint("Vertical", 2),
    Sketcher.Constraint("Horizontal", 3),
    Sketcher.Constraint("DistanceX", 1, 1, 1, 2, Q("2 mm")),
    Sketcher.Constraint("DistanceY", 0, 1, 0, 2, Q("16 mm")),
    Sketcher.Constraint("DistanceY", -1, 1, 0, 2, Q("8 mm")),
    Sketcher.Constraint("DistanceX", 0, 2, -1, 1, Q("21.5 mm")),
])
pad4 = body.newObject("PartDesign::Pad", "Pad003")
pad4.Profile = sketch4
pad4.Length = 0.9
pad4.Reversed = True

# Sketch on XY plane
sketch5 = body.newObject("Sketcher::SketchObject", "Sketch004")
sketch5.AttachmentSupport = (doc.getObject("XY_Plane"), [""])
sketch5.MapMode = "FlatFace"
sketch5.AttachmentOffset = App.Placement(App.Vector(0, 0, 1.3), App.Rotation())
sketch5.addGeometry([
    Part.LineSegment(App.Vector(-11.9, 12.9, 0), App.Vector(-11.9, 11.4, 0)),  # 0
    Part.LineSegment(App.Vector(-11.9, 11.4, 0), App.Vector(-8.9, 11.4, 0)),  # 1
    Part.LineSegment(App.Vector(-8.9, 11.4, 0), App.Vector(-8.9, 12.9, 0)),  # 2
    Part.LineSegment(App.Vector(-8.9, 12.9, 0), App.Vector(-11.9, 12.9, 0)),  # 3
    Part.LineSegment(App.Vector(-14.9, 11, 0), App.Vector(-14.9, 8.5, 0)),  # 4
    Part.LineSegment(App.Vector(-14.9, 8.5, 0), App.Vector(-13.4, 8.5, 0)),  # 5
    Part.LineSegment(App.Vector(-13.4, 8.5, 0), App.Vector(-13.4, 11, 0)),  # 6
    Part.LineSegment(App.Vector(-13.4, 11, 0), App.Vector(-14.9, 11, 0)),  # 7
    Part.LineSegment(App.Vector(-14.9, -8.5, 0), App.Vector(-14.9, -11, 0)),  # 8
    Part.LineSegment(App.Vector(-14.9, -11, 0), App.Vector(-13.4, -11, 0)),  # 9
    Part.LineSegment(App.Vector(-13.4, -11, 0), App.Vector(-13.4, -8.5, 0)),  # 10
    Part.LineSegment(App.Vector(-13.4, -8.5, 0), App.Vector(-14.9, -8.5, 0)),  # 11
    Part.LineSegment(App.Vector(-11.9, -11.4, 0), App.Vector(-11.9, -12.9, 0)),  # 12
    Part.LineSegment(App.Vector(-11.9, -12.9, 0), App.Vector(-8.9, -12.9, 0)),  # 13
    Part.LineSegment(App.Vector(-8.9, -12.9, 0), App.Vector(-8.9, -11.4, 0)),  # 14
    Part.LineSegment(App.Vector(-8.9, -11.4, 0), App.Vector(-11.9, -11.4, 0)),  # 15
    Part.LineSegment(App.Vector(23, -11.4, 0), App.Vector(23, -12.9, 0)),  # 16
    Part.LineSegment(App.Vector(23, -12.9, 0), App.Vector(26, -12.9, 0)),  # 17
    Part.LineSegment(App.Vector(26, -12.9, 0), App.Vector(26, -11.4, 0)),  # 18
    Part.LineSegment(App.Vector(26, -11.4, 0), App.Vector(23, -11.4, 0)),  # 19
    Part.LineSegment(App.Vector(23, 12.9, 0), App.Vector(23, 11.4, 0)),  # 20
    Part.LineSegment(App.Vector(23, 11.4, 0), App.Vector(26, 11.4, 0)),  # 21
    Part.LineSegment(App.Vector(26, 11.4, 0), App.Vector(26, 12.9, 0)),  # 22
    Part.LineSegment(App.Vector(26, 12.9, 0), App.Vector(23, 12.9, 0)),  # 23
], False)
sketch5.addConstraint([
    Sketcher.Constraint("Coincident", 0, 2, 1, 1),
    Sketcher.Constraint("Coincident", 1, 2, 2, 1),
    Sketcher.Constraint("Coincident", 2, 2, 3, 1),
    Sketcher.Constraint("Coincident", 3, 2, 0, 1),
    Sketcher.Constraint("Coincident", 4, 2, 5, 1),
    Sketcher.Constraint("Coincident", 5, 2, 6, 1),
    Sketcher.Constraint("Coincident", 6, 2, 7, 1),
    Sketcher.Constraint("Coincident", 7, 2, 4, 1),
    Sketcher.Constraint("Coincident", 8, 2, 9, 1),
    Sketcher.Constraint("Coincident", 9, 2, 10, 1),
    Sketcher.Constraint("Coincident", 10, 2, 11, 1),
    Sketcher.Constraint("Coincident", 11, 2, 8, 1),
    Sketcher.Constraint("Coincident", 12, 2, 13, 1),
    Sketcher.Constraint("Coincident", 13, 2, 14, 1),
    Sketcher.Constraint("Coincident", 14, 2, 15, 1),
    Sketcher.Constraint("Coincident", 15, 2, 12, 1),
    Sketcher.Constraint("Coincident", 16, 2, 17, 1),
    Sketcher.Constraint("Coincident", 17, 2, 18, 1),
    Sketcher.Constraint("Coincident", 18, 2, 19, 1),
    Sketcher.Constraint("Coincident", 19, 2, 16, 1),
    Sketcher.Constraint("Coincident", 20, 2, 21, 1),
    Sketcher.Constraint("Coincident", 21, 2, 22, 1),
    Sketcher.Constraint("Coincident", 22, 2, 23, 1),
    Sketcher.Constraint("Coincident", 23, 2, 20, 1),
    Sketcher.Constraint("Vertical", 0),
    Sketcher.Constraint("Horizontal", 1),
    Sketcher.Constraint("Vertical", 2),
    Sketcher.Constraint("Horizontal", 3),
    Sketcher.Constraint("Vertical", 4),
    Sketcher.Constraint("Horizontal", 5),
    Sketcher.Constraint("Vertical", 6),
    Sketcher.Constraint("Horizontal", 7),
    Sketcher.Constraint("Vertical", 8),
    Sketcher.Constraint("Horizontal", 9),
    Sketcher.Constraint("Vertical", 10),
    Sketcher.Constraint("Horizontal", 11),
    Sketcher.Constraint("Vertical", 12),
    Sketcher.Constraint("Horizontal", 13),
    Sketcher.Constraint("Vertical", 14),
    Sketcher.Constraint("Horizontal", 15),
    Sketcher.Constraint("Vertical", 16),
    Sketcher.Constraint("Horizontal", 17),
    Sketcher.Constraint("Vertical", 18),
    Sketcher.Constraint("Horizontal", 19),
    Sketcher.Constraint("Vertical", 20),
    Sketcher.Constraint("Horizontal", 21),
    Sketcher.Constraint("Vertical", 22),
    Sketcher.Constraint("Horizontal", 23),
    Sketcher.Constraint("Symmetric", 7, 2, 8, 2, -1),
    Sketcher.Constraint("Symmetric", 5, 2, 10, 2, -1),
    Sketcher.Constraint("Symmetric", 3, 2, 12, 2, -1),
    Sketcher.Constraint("Symmetric", 1, 2, 14, 2, -1),
    Sketcher.Constraint("Symmetric", 19, 2, 20, 2, -1),
    Sketcher.Constraint("Symmetric", 17, 2, 22, 2, -1),
    Sketcher.Constraint("Horizontal", 13, 2, 16, 2),
    Sketcher.Constraint("Horizontal", 15, 2, 18, 2),
    Sketcher.Constraint("Equal", 15, 17),
    Sketcher.Constraint("Equal", 11, 0),
    Sketcher.Constraint("DistanceX", 1, 1, 1, 2, Q("3 mm")),
    Sketcher.Constraint("DistanceX", 5, 1, 5, 2, Q("1.5 mm")),
    Sketcher.Constraint("DistanceY", 4, 2, 4, 1, Q("2.5 mm")),
    Sketcher.Constraint("DistanceY", -1, 1, 6, 2, Q("11 mm")),
    Sketcher.Constraint("DistanceX", -1, 1, 16, 2, Q("23 mm")),
    Sketcher.Constraint("DistanceX", 4, 2, 0, 2, Q("3 mm")),
    Sketcher.Constraint("DistanceX", 0, 2, -1, 1, Q("11.9 mm")),
    Sketcher.Constraint("DistanceY", -1, 1, 0, 2, Q("11.4 mm")),
])
pad5 = body.newObject("PartDesign::Pad", "Pad004")
pad5.Profile = sketch5
pad5.Length = 0.9

doc.recompute()
